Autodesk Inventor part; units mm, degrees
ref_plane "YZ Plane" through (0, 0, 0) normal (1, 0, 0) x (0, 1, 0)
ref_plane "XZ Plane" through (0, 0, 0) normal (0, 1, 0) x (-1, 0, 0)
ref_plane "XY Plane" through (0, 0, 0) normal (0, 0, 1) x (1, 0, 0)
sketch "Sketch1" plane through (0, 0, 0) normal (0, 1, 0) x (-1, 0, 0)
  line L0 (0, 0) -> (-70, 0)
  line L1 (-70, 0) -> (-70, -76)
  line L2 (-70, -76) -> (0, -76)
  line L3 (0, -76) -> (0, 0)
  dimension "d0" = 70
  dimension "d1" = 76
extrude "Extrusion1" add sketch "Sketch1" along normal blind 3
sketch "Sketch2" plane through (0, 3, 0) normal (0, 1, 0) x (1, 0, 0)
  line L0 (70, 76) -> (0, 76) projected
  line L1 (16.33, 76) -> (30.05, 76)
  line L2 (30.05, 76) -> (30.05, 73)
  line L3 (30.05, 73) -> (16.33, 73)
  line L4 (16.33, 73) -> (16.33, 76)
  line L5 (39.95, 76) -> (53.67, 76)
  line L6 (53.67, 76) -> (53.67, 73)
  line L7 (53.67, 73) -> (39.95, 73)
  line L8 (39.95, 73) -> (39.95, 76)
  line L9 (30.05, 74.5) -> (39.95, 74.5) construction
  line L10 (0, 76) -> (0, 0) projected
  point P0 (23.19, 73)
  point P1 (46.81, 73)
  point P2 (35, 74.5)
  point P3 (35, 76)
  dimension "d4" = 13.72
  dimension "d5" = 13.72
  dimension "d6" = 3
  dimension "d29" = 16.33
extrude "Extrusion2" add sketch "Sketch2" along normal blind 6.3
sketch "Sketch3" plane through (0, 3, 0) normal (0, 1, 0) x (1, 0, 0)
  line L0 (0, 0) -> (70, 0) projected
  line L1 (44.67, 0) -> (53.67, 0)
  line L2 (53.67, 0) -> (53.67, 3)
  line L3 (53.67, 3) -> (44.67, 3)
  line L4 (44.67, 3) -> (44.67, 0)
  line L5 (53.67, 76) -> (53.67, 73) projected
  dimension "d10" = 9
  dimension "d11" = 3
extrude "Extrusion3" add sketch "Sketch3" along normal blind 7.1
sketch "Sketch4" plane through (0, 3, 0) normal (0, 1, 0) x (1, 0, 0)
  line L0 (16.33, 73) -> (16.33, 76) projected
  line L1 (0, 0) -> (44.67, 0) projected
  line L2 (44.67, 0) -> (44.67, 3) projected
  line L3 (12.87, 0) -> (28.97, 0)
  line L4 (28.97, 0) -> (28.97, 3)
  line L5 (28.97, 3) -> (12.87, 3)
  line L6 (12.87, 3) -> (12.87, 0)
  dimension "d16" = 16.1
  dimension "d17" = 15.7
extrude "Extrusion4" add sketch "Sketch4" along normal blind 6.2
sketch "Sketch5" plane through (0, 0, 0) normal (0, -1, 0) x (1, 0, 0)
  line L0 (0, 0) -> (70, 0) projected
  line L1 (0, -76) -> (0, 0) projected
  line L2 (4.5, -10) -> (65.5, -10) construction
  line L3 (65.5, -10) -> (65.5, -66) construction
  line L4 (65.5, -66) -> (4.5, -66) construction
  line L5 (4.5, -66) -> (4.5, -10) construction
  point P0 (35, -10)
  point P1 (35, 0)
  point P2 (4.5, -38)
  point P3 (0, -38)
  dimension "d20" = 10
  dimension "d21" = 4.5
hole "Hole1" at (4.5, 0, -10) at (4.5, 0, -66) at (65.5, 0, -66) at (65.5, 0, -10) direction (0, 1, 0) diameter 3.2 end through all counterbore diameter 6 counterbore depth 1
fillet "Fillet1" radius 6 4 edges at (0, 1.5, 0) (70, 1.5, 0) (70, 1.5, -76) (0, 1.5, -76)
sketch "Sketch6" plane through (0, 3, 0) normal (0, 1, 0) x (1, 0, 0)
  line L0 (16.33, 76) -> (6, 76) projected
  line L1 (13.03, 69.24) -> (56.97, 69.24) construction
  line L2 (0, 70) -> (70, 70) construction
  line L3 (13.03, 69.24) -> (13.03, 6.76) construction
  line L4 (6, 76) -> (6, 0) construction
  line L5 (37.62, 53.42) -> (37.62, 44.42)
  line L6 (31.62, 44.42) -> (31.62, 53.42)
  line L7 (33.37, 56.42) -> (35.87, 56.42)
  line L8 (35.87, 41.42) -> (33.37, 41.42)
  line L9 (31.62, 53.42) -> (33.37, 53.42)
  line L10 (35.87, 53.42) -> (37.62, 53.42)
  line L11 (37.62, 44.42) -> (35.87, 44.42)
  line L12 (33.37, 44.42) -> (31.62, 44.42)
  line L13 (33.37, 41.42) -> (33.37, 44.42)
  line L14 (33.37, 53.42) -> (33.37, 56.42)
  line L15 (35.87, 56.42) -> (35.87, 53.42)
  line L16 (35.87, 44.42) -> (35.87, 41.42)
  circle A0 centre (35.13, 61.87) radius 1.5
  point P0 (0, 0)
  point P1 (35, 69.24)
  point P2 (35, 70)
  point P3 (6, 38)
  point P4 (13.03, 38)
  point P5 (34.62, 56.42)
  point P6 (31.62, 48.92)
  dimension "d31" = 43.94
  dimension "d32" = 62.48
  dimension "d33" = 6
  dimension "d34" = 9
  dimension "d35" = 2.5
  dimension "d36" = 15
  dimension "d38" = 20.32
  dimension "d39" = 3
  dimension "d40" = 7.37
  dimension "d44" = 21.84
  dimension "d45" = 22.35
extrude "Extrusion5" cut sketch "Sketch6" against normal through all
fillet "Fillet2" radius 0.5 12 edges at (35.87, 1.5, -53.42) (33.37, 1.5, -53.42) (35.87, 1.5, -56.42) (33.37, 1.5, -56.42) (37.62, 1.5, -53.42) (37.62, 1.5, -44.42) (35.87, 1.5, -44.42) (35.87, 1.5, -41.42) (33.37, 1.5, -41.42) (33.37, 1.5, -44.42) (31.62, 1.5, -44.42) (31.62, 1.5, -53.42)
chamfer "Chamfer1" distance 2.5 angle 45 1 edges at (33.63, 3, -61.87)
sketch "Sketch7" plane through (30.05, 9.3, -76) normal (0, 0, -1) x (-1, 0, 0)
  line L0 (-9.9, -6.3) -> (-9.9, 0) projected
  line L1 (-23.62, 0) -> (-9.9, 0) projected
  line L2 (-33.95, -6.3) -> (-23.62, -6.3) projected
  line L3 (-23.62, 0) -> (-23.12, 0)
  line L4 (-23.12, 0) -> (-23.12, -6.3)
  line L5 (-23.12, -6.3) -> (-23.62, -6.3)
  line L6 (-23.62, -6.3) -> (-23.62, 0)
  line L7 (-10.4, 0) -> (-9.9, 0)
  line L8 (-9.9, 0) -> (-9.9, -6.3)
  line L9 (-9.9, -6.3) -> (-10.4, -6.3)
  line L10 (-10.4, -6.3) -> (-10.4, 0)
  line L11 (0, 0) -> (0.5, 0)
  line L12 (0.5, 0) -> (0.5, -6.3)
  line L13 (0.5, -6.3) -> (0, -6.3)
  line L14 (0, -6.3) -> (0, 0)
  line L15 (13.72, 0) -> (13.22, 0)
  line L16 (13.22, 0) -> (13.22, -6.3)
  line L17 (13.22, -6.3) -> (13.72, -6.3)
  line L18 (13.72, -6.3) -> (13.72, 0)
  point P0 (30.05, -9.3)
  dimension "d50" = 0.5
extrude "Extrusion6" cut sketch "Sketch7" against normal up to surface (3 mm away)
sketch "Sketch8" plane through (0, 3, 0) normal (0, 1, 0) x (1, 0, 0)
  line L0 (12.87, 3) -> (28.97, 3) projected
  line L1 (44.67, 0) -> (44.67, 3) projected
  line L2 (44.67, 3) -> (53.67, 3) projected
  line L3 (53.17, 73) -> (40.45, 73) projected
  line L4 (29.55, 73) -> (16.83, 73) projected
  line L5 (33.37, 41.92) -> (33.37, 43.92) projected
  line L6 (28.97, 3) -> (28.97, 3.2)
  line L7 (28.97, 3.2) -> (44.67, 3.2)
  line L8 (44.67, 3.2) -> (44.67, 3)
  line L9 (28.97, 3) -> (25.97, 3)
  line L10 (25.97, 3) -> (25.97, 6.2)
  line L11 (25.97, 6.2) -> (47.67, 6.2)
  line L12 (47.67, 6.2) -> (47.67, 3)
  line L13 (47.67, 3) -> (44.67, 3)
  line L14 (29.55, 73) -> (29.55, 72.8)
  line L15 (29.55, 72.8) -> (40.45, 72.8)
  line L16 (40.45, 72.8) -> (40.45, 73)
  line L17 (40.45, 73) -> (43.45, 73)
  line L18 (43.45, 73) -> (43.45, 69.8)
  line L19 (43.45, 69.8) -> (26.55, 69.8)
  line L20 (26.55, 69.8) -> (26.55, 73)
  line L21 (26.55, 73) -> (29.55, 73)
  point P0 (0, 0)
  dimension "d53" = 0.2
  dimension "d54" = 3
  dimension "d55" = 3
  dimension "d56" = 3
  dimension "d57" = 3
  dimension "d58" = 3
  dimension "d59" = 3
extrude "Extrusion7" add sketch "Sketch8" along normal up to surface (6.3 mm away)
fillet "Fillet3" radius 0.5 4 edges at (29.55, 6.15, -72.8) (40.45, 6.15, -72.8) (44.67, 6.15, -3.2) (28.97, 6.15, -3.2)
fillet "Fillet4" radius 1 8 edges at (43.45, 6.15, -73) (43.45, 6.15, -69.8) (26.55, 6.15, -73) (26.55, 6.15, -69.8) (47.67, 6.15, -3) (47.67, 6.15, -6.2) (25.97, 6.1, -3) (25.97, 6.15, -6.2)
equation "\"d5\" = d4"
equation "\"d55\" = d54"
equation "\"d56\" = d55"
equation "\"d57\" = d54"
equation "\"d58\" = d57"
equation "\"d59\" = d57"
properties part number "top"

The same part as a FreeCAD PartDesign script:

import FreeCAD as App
import Part
import Sketcher
Q = App.Units.Quantity


def edges_at(feature, points):
    """Names of the edges that pass closest to the given points."""
    edges = feature.Shape.Edges
    near = lambda p: min(range(len(edges)), key=lambda i: edges[i].distToShape(Part.Vertex(*p))[0])
    return sorted({f"Edge{near(p) + 1}" for p in points})


def add_polygon(sketch, points):
    """Adds a closed chain of lines whose ends are joined by coincident constraints."""
    first, n = sketch.GeometryCount, len(points)
    for a, b in zip(points, points[1:] + points[:1]):
        sketch.addGeometry(Part.LineSegment(App.Vector(*a, 0), App.Vector(*b, 0)), False)
    for i in range(n):
        sketch.addConstraint(Sketcher.Constraint("Coincident", first + i, 2, first + (i + 1) % n, 1))

doc = App.newDocument("Part")
body = doc.addObject("PartDesign::Body", "Body")

sketch1 = body.newObject("Sketcher::SketchObject", "Sketch")
sketch1.AttachmentSupport = (doc.getObject("XZ_Plane"), [""])
sketch1.MapMode = "FlatFace"
add_polygon(sketch1, [(0, -76), (0, 0), (70, 0), (70, -76)])
sketch1.addConstraint(Sketcher.Constraint("Vertical", 0))
sketch1.addConstraint(Sketcher.Constraint("Horizontal", 1))
sketch1.addConstraint(Sketcher.Constraint("Vertical", 2))
sketch1.addConstraint(Sketcher.Constraint("Horizontal", 3))
sketch1.addConstraint(Sketcher.Constraint("Coincident", 0, 2, -1, 1))
sketch1.addConstraint(Sketcher.Constraint("DistanceX", 1, 1, 1, 2, Q("70 mm")))
sketch1.addConstraint(Sketcher.Constraint("DistanceY", 0, 1, 0, 2, Q("76 mm")))
pad1 = body.newObject("PartDesign::Pad", "Pad")
pad1.Profile = sketch1
pad1.Length = 3
pad1.Reversed = True

sketch2 = body.newObject("Sketcher::SketchObject", "Sketch001")
sketch2.AttachmentSupport = (doc.getObject("XZ_Plane"), [""])
sketch2.MapMode = "FlatFace"
sketch2.AttachmentOffset = App.Placement(App.Vector(0, 0, -3), App.Rotation())
add_polygon(sketch2, [(53.7, -73), (53.7, -76), (40, -76), (40, -73)])
add_polygon(sketch2, [(30.1, -73), (30.1, -76), (16.3, -76), (16.3, -73)])
sketch2.addConstraint(Sketcher.Constraint("Vertical", 0))
sketch2.addConstraint(Sketcher.Constraint("Horizontal", 1))
sketch2.addConstraint(Sketcher.Constraint("Vertical", 2))
sketch2.addConstraint(Sketcher.Constraint("Horizontal", 3))
sketch2.addConstraint(Sketcher.Constraint("Vertical", 4))
sketch2.addConstraint(Sketcher.Constraint("Horizontal", 5))
sketch2.addConstraint(Sketcher.Constraint("Vertical", 6))
sketch2.addConstraint(Sketcher.Constraint("Horizontal", 7))
sketch2.addConstraint(Sketcher.Constraint("Horizontal", 1, 2, 4, 2))
sketch2.addConstraint(Sketcher.Constraint("Horizontal", 3, 2, 6, 2))
sketch2.addConstraint(Sketcher.Constraint("Equal", 3, 5))
sketch2.addConstraint(Sketcher.Constraint("DistanceY", 0, 2, 0, 1, Q("3 mm")))
sketch2.addConstraint(Sketcher.Constraint("DistanceX", 1, 2, 1, 1, Q("13.72 mm")))
sketch2.addConstraint(Sketcher.Constraint("DistanceX", -1, 1, 5, 2, Q("16.33 mm")))
sketch2.addConstraint(Sketcher.Constraint("DistanceY", 0, 2, -1, 1, Q("76 mm")))
sketch2.addConstraint(Sketcher.Constraint("DistanceX", 4, 2, 1, 2, Q("9.9 mm")))
pad2 = body.newObject("PartDesign::Pad", "Pad001")
pad2.Profile = sketch2
pad2.Length = 6.3
pad2.Reversed = True

sketch3 = body.newObject("Sketcher::SketchObject", "Sketch002")
sketch3.AttachmentSupport = (doc.getObject("XZ_Plane"), [""])
sketch3.MapMode = "FlatFace"
sketch3.AttachmentOffset = App.Placement(App.Vector(0, 0, -3), App.Rotation())
add_polygon(sketch3, [(44.7, -3), (44.7, 0), (53.7, 0), (53.7, -3)])
sketch3.addConstraint(Sketcher.Constraint("Vertical", 0))
sketch3.addConstraint(Sketcher.Constraint("Horizontal", 1))
sketch3.addConstraint(Sketcher.Constraint("Vertical", 2))
sketch3.addConstraint(Sketcher.Constraint("Horizontal", 3))
sketch3.addConstraint(Sketcher.Constraint("PointOnObject", 0, 2, -1))
sketch3.addConstraint(Sketcher.Constraint("DistanceX", 1, 1, 1, 2, Q("9 mm")))
sketch3.addConstraint(Sketcher.Constraint("DistanceY", 0, 1, 0, 2, Q("3 mm")))
sketch3.addConstraint(Sketcher.Constraint("DistanceX", -1, 1, 0, 2, Q("44.67 mm")))
pad3 = body.newObject("PartDesign::Pad", "Pad002")
pad3.Profile = sketch3
pad3.Length = 7.1
pad3.Reversed = True

sketch4 = body.newObject("Sketcher::SketchObject", "Sketch003")
sketch4.AttachmentSupport = (doc.getObject("XZ_Plane"), [""])
sketch4.MapMode = "FlatFace"
sketch4.AttachmentOffset = App.Placement(App.Vector(0, 0, -3), App.Rotation())
add_polygon(sketch4, [(12.9, -3), (12.9, 0), (29, 0), (29, -3)])
sketch4.addConstraint(Sketcher.Constraint("Vertical", 0))
sketch4.addConstraint(Sketcher.Constraint("Horizontal", 1))
sketch4.addConstraint(Sketcher.Constraint("Vertical", 2))
sketch4.addConstraint(Sketcher.Constraint("Horizontal", 3))
sketch4.addConstraint(Sketcher.Constraint("PointOnObject", 0, 2, -1))
sketch4.addConstraint(Sketcher.Constraint("DistanceX", 1, 1, 1, 2, Q("16.1 mm")))
sketch4.addConstraint(Sketcher.Constraint("DistanceY", 0, 1, 0, 2, Q("3 mm")))
sketch4.addConstraint(Sketcher.Constraint("DistanceX", -1, 1, 0, 2, Q("12.87 mm")))
pad4 = body.newObject("PartDesign::Pad", "Pad003")
pad4.Profile = sketch4
pad4.Length = 6.2
pad4.Reversed = True

sketch5 = body.newObject("Sketcher::SketchObject", "Sketch004")
sketch5.AttachmentSupport = (doc.getObject("XZ_Plane"), [""])
sketch5.MapMode = "FlatFace"
sketch5.addGeometry(Part.Circle(App.Vector(4.5, -10, 0), App.Vector(0, 0, 1), 1.6), False)
sketch5.addGeometry(Part.Circle(App.Vector(4.5, -66, 0), App.Vector(0, 0, 1), 1.6), False)
sketch5.addGeometry(Part.Circle(App.Vector(65.5, -66, 0), App.Vector(0, 0, 1), 1.6), False)
sketch5.addGeometry(Part.Circle(App.Vector(65.5, -10, 0), App.Vector(0, 0, 1), 1.6), False)
sketch5.addConstraint(Sketcher.Constraint("Equal", 0, 1))
sketch5.addConstraint(Sketcher.Constraint("Equal", 1, 2))
sketch5.addConstraint(Sketcher.Constraint("Equal", 2, 3))
sketch5.addConstraint(Sketcher.Constraint("Horizontal", 1, 3, 2, 3))
sketch5.addConstraint(Sketcher.Constraint("Horizontal", 0, 3, 3, 3))
sketch5.addConstraint(Sketcher.Constraint("Vertical", 0, 3, 1, 3))
sketch5.addConstraint(Sketcher.Constraint("Vertical", 2, 3, 3, 3))
sketch5.addConstraint(Sketcher.Constraint("Diameter", 0, Q("3.2 mm")))
sketch5.addConstraint(Sketcher.Constraint("DistanceY", 0, 3, -1, 1, Q("10 mm")))
sketch5.addConstraint(Sketcher.Constraint("DistanceY", 1, 3, -1, 1, Q("66 mm")))
sketch5.addConstraint(Sketcher.Constraint("DistanceX", 1, 3, 2, 3, Q("61 mm")))
sketch5.addConstraint(Sketcher.Constraint("DistanceX", -1, 1, 0, 3, Q("4.5 mm")))
doc.recompute()
hole = body.newObject("PartDesign::Hole", "Hole")
hole.Profile = sketch5
hole.ThreadType = "None"
hole.Diameter = 3.2
hole.DepthType = "ThroughAll"
hole.HoleCutType = "Counterbore"
hole.HoleCutDiameter = 6
hole.HoleCutDepth = 1
doc.recompute()

fillet = body.newObject("PartDesign::Fillet", "Fillet")
fillet.Base = (hole, edges_at(hole, [
    (0, 1.5, 0),
    (70, 1.5, 0),
    (70, 1.5, -76),
    (0, 1.5, -76),
]))
fillet.Radius = 6

sketch6 = body.newObject("Sketcher::SketchObject", "Sketch005")
sketch6.AttachmentSupport = (doc.getObject("XZ_Plane"), [""])
sketch6.MapMode = "FlatFace"
sketch6.AttachmentOffset = App.Placement(App.Vector(0, 0, -3), App.Rotation())
add_polygon(sketch6, [(37.6, -44.4), (37.6, -53.4), (35.9, -53.4), (35.9, -56.4), (33.4, -56.4), (33.4, -53.4), (31.6, -53.4), (31.6, -44.4), (33.4, -44.4), (33.4, -41.4), (35.9, -41.4), (35.9, -44.4)])
sketch6.addGeometry(Part.Circle(App.Vector(35.1, -61.9, 0), App.Vector(0, 0, 1), 1.5), False)
sketch6.addConstraint(Sketcher.Constraint("Vertical", 0))
sketch6.addConstraint(Sketcher.Constraint("Horizontal", 1))
sketch6.addConstraint(Sketcher.Constraint("Vertical", 2))
sketch6.addConstraint(Sketcher.Constraint("Horizontal", 3))
sketch6.addConstraint(Sketcher.Constraint("Vertical", 4))
sketch6.addConstraint(Sketcher.Constraint("Horizontal", 5))
sketch6.addConstraint(Sketcher.Constraint("Vertical", 6))
sketch6.addConstraint(Sketcher.Constraint("Horizontal", 7))
sketch6.addConstraint(Sketcher.Constraint("Vertical", 8))
sketch6.addConstraint(Sketcher.Constraint("Horizontal", 9))
sketch6.addConstraint(Sketcher.Constraint("Vertical", 10))
sketch6.addConstraint(Sketcher.Constraint("Horizontal", 11))
sketch6.addConstraint(Sketcher.Constraint("Horizontal", 1, 2, 4, 2))
sketch6.addConstraint(Sketcher.Constraint("Horizontal", 7, 2, 10, 2))
sketch6.addConstraint(Sketcher.Constraint("Vertical", 4, 2, 7, 2))
sketch6.addConstraint(Sketcher.Constraint("Vertical", 2, 2, 9, 2))
sketch6.addConstraint(Sketcher.Constraint("Equal", 1, 5))
sketch6.addConstraint(Sketcher.Constraint("Equal", 4, 8))
sketch6.addConstraint(Sketcher.Constraint("Diameter", 12, Q("3 mm")))
sketch6.addConstraint(Sketcher.Constraint("DistanceY", 0, 2, 0, 1, Q("9 mm")))
sketch6.addConstraint(Sketcher.Constraint("DistanceY", 2, 2, 2, 1, Q("3 mm")))
sketch6.addConstraint(Sketcher.Constraint("DistanceX", 3, 2, 3, 1, Q("2.5 mm")))
sketch6.addConstraint(Sketcher.Constraint("DistanceX", 5, 2, 0, 2, Q("6 mm")))
sketch6.addConstraint(Sketcher.Constraint("DistanceX", -1, 1, 12, 3, Q("35.13 mm")))
sketch6.addConstraint(Sketcher.Constraint("DistanceY", 12, 3, -1, 1, Q("61.87 mm")))
sketch6.addConstraint(Sketcher.Constraint("DistanceX", -1, 1, 0, 2, Q("37.62 mm")))
sketch6.addConstraint(Sketcher.Constraint("DistanceY", 0, 2, -1, 1, Q("53.42 mm")))
pocket1 = body.newObject("PartDesign::Pocket", "Pocket")
pocket1.Profile = sketch6
pocket1.Type = "ThroughAll"
pocket1.Reversed = True
doc.recompute()

fillet2 = body.newObject("PartDesign::Fillet", "Fillet001")
fillet2.Base = (pocket1, edges_at(pocket1, [
    (35.87, 1.5, -53.42),
    (33.37, 1.5, -53.42),
    (35.87, 1.5, -56.42),
    (33.37, 1.5, -56.42),
    (37.62, 1.5, -53.42),
    (37.62, 1.5, -44.42),
    (35.87, 1.5, -44.42),
    (35.87, 1.5, -41.42),
    (33.37, 1.5, -41.42),
    (33.37, 1.5, -44.42),
    (31.62, 1.5, -44.42),
    (31.62, 1.5, -53.42),
]))
fillet2.Radius = 0.5
doc.recompute()

chamfer = body.newObject("PartDesign::Chamfer", "Chamfer")
chamfer.Base = (fillet2, edges_at(fillet2, [(33.63, 3, -61.87)]))
chamfer.Size = 2.5

sketch7 = body.newObject("Sketcher::SketchObject", "Sketch006")
sketch7.AttachmentSupport = (doc.getObject("XY_Plane"), [""])
sketch7.MapMode = "FlatFace"
sketch7.AttachmentOffset = App.Placement(App.Vector(0, 0, -76), App.Rotation())
add_polygon(sketch7, [(40.5, 3), (40, 3), (40, 9.3), (40.5, 9.3)])
add_polygon(sketch7, [(53.2, 3), (53.2, 9.3), (53.7, 9.3), (53.7, 3)])
add_polygon(sketch7, [(29.6, 9.3), (30.1, 9.3), (30.1, 3), (29.6, 3)])
add_polygon(sketch7, [(16.3, 3), (16.3, 9.3), (16.8, 9.3), (16.8, 3)])
sketch7.addConstraint(Sketcher.Constraint("Horizontal", 0))
sketch7.addConstraint(Sketcher.Constraint("Vertical", 1))
sketch7.addConstraint(Sketcher.Constraint("Horizontal", 2))
sketch7.addConstraint(Sketcher.Constraint("Vertical", 3))
sketch7.addConstraint(Sketcher.Constraint("Vertical", 4))
sketch7.addConstraint(Sketcher.Constraint("Horizontal", 5))
sketch7.addConstraint(Sketcher.Constraint("Vertical", 6))
sketch7.addConstraint(Sketcher.Constraint("Horizontal", 7))
sketch7.addConstraint(Sketcher.Constraint("Horizontal", 8))
sketch7.addConstraint(Sketcher.Constraint("Vertical", 9))
sketch7.addConstraint(Sketcher.Constraint("Horizontal", 10))
sketch7.addConstraint(Sketcher.Constraint("Vertical", 11))
sketch7.addConstraint(Sketcher.Constraint("Vertical", 12))
sketch7.addConstraint(Sketcher.Constraint("Horizontal", 13))
sketch7.addConstraint(Sketcher.Constraint("Vertical", 14))
sketch7.addConstraint(Sketcher.Constraint("Horizontal", 15))
sketch7.addConstraint(Sketcher.Constraint("Horizontal", 2, 2, 4, 2))
sketch7.addConstraint(Sketcher.Constraint("Horizontal", 3, 2, 6, 2))
sketch7.addConstraint(Sketcher.Constraint("Horizontal", 5, 2, 8, 2))
sketch7.addConstraint(Sketcher.Constraint("Horizontal", 7, 2, 9, 2))
sketch7.addConstraint(Sketcher.Constraint("Horizontal", 11, 2, 12, 2))
sketch7.addConstraint(Sketcher.Constraint("Horizontal", 10, 2, 14, 2))
sketch7.addConstraint(Sketcher.Constraint("Equal", 2, 5))
sketch7.addConstraint(Sketcher.Constraint("Equal", 7, 8))
sketch7.addConstraint(Sketcher.Constraint("Equal", 10, 13))
sketch7.addConstraint(Sketcher.Constraint("DistanceX", 0, 2, 0, 1, Q("0.5 mm")))
sketch7.addConstraint(Sketcher.Constraint("DistanceY", 1, 1, 1, 2, Q("6.3 mm")))
sketch7.addConstraint(Sketcher.Constraint("DistanceY", -1, 1, 0, 2, Q("3 mm")))
sketch7.addConstraint(Sketcher.Constraint("DistanceX", 8, 2, 1, 2, Q("9.9 mm")))
sketch7.addConstraint(Sketcher.Constraint("DistanceX", -1, 1, 0, 2, Q("39.95 mm")))
sketch7.addConstraint(Sketcher.Constraint("DistanceX", -1, 1, 4, 2, Q("53.17 mm")))
sketch7.addConstraint(Sketcher.Constraint("DistanceX", -1, 1, 12, 2, Q("16.33 mm")))
pocket2 = body.newObject("PartDesign::Pocket", "Pocket001")
pocket2.Profile = sketch7
pocket2.Length = 3
pocket2.Reversed = True

sketch8 = body.newObject("Sketcher::SketchObject", "Sketch007")
sketch8.AttachmentSupport = (doc.getObject("XZ_Plane"), [""])
sketch8.MapMode = "FlatFace"
sketch8.AttachmentOffset = App.Placement(App.Vector(0, 0, -3), App.Rotation())
add_polygon(sketch8, [(25.97, -6.2), (25.97, -3), (28.97, -3), (28.97, -3.2), (44.67, -3.2), (44.67, -3), (47.67, -3), (47.67, -6.2)])
add_polygon(sketch8, [(43.45, -69.8), (43.45, -73), (40.45, -73), (40.45, -72.8), (29.55, -72.8), (29.55, -73), (26.55, -73), (26.55, -69.8)])
sketch8.addConstraint(Sketcher.Constraint("Vertical", 0))
sketch8.addConstraint(Sketcher.Constraint("Horizontal", 1))
sketch8.addConstraint(Sketcher.Constraint("Vertical", 2))
sketch8.addConstraint(Sketcher.Constraint("Horizontal", 3))
sketch8.addConstraint(Sketcher.Constraint("Vertical", 4))
sketch8.addConstraint(Sketcher.Constraint("Horizontal", 5))
sketch8.addConstraint(Sketcher.Constraint("Vertical", 6))
sketch8.addConstraint(Sketcher.Constraint("Horizontal", 7))
sketch8.addConstraint(Sketcher.Constraint("Vertical", 8))
sketch8.addConstraint(Sketcher.Constraint("Horizontal", 9))
sketch8.addConstraint(Sketcher.Constraint("Vertical", 10))
sketch8.addConstraint(Sketcher.Constraint("Horizontal", 11))
sketch8.addConstraint(Sketcher.Constraint("Vertical", 12))
sketch8.addConstraint(Sketcher.Constraint("Horizontal", 13))
sketch8.addConstraint(Sketcher.Constraint("Vertical", 14))
sketch8.addConstraint(Sketcher.Constraint("Horizontal", 15))
sketch8.addConstraint(Sketcher.Constraint("Horizontal", 1, 2, 4, 2))
sketch8.addConstraint(Sketcher.Constraint("Horizontal", 9, 2, 12, 2))
sketch8.addConstraint(Sketcher.Constraint("Equal", 1, 5))
sketch8.addConstraint(Sketcher.Constraint("Equal", 5, 9))
sketch8.addConstraint(Sketcher.Constraint("Equal", 9, 13))
sketch8.addConstraint(Sketcher.Constraint("Equal", 6, 8))
sketch8.addConstraint(Sketcher.Constraint("Equal", 4, 10))
sketch8.addConstraint(Sketcher.Constraint("DistanceX", 1, 1, 1, 2, Q("3 mm")))
sketch8.addConstraint(Sketcher.Constraint("DistanceY", 2, 2, 2, 1, Q("0.2 mm")))
sketch8.addConstraint(Sketcher.Constraint("DistanceY", 0, 2, -1, 1, Q("3 mm")))
sketch8.addConstraint(Sketcher.Constraint("DistanceY", 6, 2, 3, 2, Q("3 mm")))
sketch8.addConstraint(Sketcher.Constraint("DistanceX", 3, 1, 3, 2, Q("15.7 mm")))
sketch8.addConstraint(Sketcher.Constraint("DistanceX", 11, 2, 11, 1, Q("10.9 mm")))
sketch8.addConstraint(Sketcher.Constraint("DistanceY", 8, 2, -1, 1, Q("73 mm")))
sketch8.addConstraint(Sketcher.Constraint("DistanceX", -1, 1, 0, 2, Q("25.97 mm")))
sketch8.addConstraint(Sketcher.Constraint("DistanceX", -1, 1, 8, 2, Q("43.45 mm")))
pad5 = body.newObject("PartDesign::Pad", "Pad004")
pad5.Profile = sketch8
pad5.Length = 6.3
pad5.Reversed = True
doc.recompute()

fillet3 = body.newObject("PartDesign::Fillet", "Fillet002")
fillet3.Base = (pad5, edges_at(pad5, [
    (29.55, 6.15, -72.8),
    (40.45, 6.15, -72.8),
    (44.67, 6.15, -3.2),
    (28.97, 6.15, -3.2),
]))
fillet3.Radius = 0.5
doc.recompute()

fillet4 = body.newObject("PartDesign::Fillet", "Fillet003")
fillet4.Base = (fillet3, edges_at(fillet3, [
    (43.45, 6.15, -73),
    (43.45, 6.15, -69.8),
    (26.55, 6.15, -73),
    (26.55, 6.15, -69.8),
    (47.67, 6.15, -3),
    (47.67, 6.15, -6.2),
    (25.97, 6.1, -3),
    (25.97, 6.15, -6.2),
]))
fillet4.Radius = 1

doc.recompute()
